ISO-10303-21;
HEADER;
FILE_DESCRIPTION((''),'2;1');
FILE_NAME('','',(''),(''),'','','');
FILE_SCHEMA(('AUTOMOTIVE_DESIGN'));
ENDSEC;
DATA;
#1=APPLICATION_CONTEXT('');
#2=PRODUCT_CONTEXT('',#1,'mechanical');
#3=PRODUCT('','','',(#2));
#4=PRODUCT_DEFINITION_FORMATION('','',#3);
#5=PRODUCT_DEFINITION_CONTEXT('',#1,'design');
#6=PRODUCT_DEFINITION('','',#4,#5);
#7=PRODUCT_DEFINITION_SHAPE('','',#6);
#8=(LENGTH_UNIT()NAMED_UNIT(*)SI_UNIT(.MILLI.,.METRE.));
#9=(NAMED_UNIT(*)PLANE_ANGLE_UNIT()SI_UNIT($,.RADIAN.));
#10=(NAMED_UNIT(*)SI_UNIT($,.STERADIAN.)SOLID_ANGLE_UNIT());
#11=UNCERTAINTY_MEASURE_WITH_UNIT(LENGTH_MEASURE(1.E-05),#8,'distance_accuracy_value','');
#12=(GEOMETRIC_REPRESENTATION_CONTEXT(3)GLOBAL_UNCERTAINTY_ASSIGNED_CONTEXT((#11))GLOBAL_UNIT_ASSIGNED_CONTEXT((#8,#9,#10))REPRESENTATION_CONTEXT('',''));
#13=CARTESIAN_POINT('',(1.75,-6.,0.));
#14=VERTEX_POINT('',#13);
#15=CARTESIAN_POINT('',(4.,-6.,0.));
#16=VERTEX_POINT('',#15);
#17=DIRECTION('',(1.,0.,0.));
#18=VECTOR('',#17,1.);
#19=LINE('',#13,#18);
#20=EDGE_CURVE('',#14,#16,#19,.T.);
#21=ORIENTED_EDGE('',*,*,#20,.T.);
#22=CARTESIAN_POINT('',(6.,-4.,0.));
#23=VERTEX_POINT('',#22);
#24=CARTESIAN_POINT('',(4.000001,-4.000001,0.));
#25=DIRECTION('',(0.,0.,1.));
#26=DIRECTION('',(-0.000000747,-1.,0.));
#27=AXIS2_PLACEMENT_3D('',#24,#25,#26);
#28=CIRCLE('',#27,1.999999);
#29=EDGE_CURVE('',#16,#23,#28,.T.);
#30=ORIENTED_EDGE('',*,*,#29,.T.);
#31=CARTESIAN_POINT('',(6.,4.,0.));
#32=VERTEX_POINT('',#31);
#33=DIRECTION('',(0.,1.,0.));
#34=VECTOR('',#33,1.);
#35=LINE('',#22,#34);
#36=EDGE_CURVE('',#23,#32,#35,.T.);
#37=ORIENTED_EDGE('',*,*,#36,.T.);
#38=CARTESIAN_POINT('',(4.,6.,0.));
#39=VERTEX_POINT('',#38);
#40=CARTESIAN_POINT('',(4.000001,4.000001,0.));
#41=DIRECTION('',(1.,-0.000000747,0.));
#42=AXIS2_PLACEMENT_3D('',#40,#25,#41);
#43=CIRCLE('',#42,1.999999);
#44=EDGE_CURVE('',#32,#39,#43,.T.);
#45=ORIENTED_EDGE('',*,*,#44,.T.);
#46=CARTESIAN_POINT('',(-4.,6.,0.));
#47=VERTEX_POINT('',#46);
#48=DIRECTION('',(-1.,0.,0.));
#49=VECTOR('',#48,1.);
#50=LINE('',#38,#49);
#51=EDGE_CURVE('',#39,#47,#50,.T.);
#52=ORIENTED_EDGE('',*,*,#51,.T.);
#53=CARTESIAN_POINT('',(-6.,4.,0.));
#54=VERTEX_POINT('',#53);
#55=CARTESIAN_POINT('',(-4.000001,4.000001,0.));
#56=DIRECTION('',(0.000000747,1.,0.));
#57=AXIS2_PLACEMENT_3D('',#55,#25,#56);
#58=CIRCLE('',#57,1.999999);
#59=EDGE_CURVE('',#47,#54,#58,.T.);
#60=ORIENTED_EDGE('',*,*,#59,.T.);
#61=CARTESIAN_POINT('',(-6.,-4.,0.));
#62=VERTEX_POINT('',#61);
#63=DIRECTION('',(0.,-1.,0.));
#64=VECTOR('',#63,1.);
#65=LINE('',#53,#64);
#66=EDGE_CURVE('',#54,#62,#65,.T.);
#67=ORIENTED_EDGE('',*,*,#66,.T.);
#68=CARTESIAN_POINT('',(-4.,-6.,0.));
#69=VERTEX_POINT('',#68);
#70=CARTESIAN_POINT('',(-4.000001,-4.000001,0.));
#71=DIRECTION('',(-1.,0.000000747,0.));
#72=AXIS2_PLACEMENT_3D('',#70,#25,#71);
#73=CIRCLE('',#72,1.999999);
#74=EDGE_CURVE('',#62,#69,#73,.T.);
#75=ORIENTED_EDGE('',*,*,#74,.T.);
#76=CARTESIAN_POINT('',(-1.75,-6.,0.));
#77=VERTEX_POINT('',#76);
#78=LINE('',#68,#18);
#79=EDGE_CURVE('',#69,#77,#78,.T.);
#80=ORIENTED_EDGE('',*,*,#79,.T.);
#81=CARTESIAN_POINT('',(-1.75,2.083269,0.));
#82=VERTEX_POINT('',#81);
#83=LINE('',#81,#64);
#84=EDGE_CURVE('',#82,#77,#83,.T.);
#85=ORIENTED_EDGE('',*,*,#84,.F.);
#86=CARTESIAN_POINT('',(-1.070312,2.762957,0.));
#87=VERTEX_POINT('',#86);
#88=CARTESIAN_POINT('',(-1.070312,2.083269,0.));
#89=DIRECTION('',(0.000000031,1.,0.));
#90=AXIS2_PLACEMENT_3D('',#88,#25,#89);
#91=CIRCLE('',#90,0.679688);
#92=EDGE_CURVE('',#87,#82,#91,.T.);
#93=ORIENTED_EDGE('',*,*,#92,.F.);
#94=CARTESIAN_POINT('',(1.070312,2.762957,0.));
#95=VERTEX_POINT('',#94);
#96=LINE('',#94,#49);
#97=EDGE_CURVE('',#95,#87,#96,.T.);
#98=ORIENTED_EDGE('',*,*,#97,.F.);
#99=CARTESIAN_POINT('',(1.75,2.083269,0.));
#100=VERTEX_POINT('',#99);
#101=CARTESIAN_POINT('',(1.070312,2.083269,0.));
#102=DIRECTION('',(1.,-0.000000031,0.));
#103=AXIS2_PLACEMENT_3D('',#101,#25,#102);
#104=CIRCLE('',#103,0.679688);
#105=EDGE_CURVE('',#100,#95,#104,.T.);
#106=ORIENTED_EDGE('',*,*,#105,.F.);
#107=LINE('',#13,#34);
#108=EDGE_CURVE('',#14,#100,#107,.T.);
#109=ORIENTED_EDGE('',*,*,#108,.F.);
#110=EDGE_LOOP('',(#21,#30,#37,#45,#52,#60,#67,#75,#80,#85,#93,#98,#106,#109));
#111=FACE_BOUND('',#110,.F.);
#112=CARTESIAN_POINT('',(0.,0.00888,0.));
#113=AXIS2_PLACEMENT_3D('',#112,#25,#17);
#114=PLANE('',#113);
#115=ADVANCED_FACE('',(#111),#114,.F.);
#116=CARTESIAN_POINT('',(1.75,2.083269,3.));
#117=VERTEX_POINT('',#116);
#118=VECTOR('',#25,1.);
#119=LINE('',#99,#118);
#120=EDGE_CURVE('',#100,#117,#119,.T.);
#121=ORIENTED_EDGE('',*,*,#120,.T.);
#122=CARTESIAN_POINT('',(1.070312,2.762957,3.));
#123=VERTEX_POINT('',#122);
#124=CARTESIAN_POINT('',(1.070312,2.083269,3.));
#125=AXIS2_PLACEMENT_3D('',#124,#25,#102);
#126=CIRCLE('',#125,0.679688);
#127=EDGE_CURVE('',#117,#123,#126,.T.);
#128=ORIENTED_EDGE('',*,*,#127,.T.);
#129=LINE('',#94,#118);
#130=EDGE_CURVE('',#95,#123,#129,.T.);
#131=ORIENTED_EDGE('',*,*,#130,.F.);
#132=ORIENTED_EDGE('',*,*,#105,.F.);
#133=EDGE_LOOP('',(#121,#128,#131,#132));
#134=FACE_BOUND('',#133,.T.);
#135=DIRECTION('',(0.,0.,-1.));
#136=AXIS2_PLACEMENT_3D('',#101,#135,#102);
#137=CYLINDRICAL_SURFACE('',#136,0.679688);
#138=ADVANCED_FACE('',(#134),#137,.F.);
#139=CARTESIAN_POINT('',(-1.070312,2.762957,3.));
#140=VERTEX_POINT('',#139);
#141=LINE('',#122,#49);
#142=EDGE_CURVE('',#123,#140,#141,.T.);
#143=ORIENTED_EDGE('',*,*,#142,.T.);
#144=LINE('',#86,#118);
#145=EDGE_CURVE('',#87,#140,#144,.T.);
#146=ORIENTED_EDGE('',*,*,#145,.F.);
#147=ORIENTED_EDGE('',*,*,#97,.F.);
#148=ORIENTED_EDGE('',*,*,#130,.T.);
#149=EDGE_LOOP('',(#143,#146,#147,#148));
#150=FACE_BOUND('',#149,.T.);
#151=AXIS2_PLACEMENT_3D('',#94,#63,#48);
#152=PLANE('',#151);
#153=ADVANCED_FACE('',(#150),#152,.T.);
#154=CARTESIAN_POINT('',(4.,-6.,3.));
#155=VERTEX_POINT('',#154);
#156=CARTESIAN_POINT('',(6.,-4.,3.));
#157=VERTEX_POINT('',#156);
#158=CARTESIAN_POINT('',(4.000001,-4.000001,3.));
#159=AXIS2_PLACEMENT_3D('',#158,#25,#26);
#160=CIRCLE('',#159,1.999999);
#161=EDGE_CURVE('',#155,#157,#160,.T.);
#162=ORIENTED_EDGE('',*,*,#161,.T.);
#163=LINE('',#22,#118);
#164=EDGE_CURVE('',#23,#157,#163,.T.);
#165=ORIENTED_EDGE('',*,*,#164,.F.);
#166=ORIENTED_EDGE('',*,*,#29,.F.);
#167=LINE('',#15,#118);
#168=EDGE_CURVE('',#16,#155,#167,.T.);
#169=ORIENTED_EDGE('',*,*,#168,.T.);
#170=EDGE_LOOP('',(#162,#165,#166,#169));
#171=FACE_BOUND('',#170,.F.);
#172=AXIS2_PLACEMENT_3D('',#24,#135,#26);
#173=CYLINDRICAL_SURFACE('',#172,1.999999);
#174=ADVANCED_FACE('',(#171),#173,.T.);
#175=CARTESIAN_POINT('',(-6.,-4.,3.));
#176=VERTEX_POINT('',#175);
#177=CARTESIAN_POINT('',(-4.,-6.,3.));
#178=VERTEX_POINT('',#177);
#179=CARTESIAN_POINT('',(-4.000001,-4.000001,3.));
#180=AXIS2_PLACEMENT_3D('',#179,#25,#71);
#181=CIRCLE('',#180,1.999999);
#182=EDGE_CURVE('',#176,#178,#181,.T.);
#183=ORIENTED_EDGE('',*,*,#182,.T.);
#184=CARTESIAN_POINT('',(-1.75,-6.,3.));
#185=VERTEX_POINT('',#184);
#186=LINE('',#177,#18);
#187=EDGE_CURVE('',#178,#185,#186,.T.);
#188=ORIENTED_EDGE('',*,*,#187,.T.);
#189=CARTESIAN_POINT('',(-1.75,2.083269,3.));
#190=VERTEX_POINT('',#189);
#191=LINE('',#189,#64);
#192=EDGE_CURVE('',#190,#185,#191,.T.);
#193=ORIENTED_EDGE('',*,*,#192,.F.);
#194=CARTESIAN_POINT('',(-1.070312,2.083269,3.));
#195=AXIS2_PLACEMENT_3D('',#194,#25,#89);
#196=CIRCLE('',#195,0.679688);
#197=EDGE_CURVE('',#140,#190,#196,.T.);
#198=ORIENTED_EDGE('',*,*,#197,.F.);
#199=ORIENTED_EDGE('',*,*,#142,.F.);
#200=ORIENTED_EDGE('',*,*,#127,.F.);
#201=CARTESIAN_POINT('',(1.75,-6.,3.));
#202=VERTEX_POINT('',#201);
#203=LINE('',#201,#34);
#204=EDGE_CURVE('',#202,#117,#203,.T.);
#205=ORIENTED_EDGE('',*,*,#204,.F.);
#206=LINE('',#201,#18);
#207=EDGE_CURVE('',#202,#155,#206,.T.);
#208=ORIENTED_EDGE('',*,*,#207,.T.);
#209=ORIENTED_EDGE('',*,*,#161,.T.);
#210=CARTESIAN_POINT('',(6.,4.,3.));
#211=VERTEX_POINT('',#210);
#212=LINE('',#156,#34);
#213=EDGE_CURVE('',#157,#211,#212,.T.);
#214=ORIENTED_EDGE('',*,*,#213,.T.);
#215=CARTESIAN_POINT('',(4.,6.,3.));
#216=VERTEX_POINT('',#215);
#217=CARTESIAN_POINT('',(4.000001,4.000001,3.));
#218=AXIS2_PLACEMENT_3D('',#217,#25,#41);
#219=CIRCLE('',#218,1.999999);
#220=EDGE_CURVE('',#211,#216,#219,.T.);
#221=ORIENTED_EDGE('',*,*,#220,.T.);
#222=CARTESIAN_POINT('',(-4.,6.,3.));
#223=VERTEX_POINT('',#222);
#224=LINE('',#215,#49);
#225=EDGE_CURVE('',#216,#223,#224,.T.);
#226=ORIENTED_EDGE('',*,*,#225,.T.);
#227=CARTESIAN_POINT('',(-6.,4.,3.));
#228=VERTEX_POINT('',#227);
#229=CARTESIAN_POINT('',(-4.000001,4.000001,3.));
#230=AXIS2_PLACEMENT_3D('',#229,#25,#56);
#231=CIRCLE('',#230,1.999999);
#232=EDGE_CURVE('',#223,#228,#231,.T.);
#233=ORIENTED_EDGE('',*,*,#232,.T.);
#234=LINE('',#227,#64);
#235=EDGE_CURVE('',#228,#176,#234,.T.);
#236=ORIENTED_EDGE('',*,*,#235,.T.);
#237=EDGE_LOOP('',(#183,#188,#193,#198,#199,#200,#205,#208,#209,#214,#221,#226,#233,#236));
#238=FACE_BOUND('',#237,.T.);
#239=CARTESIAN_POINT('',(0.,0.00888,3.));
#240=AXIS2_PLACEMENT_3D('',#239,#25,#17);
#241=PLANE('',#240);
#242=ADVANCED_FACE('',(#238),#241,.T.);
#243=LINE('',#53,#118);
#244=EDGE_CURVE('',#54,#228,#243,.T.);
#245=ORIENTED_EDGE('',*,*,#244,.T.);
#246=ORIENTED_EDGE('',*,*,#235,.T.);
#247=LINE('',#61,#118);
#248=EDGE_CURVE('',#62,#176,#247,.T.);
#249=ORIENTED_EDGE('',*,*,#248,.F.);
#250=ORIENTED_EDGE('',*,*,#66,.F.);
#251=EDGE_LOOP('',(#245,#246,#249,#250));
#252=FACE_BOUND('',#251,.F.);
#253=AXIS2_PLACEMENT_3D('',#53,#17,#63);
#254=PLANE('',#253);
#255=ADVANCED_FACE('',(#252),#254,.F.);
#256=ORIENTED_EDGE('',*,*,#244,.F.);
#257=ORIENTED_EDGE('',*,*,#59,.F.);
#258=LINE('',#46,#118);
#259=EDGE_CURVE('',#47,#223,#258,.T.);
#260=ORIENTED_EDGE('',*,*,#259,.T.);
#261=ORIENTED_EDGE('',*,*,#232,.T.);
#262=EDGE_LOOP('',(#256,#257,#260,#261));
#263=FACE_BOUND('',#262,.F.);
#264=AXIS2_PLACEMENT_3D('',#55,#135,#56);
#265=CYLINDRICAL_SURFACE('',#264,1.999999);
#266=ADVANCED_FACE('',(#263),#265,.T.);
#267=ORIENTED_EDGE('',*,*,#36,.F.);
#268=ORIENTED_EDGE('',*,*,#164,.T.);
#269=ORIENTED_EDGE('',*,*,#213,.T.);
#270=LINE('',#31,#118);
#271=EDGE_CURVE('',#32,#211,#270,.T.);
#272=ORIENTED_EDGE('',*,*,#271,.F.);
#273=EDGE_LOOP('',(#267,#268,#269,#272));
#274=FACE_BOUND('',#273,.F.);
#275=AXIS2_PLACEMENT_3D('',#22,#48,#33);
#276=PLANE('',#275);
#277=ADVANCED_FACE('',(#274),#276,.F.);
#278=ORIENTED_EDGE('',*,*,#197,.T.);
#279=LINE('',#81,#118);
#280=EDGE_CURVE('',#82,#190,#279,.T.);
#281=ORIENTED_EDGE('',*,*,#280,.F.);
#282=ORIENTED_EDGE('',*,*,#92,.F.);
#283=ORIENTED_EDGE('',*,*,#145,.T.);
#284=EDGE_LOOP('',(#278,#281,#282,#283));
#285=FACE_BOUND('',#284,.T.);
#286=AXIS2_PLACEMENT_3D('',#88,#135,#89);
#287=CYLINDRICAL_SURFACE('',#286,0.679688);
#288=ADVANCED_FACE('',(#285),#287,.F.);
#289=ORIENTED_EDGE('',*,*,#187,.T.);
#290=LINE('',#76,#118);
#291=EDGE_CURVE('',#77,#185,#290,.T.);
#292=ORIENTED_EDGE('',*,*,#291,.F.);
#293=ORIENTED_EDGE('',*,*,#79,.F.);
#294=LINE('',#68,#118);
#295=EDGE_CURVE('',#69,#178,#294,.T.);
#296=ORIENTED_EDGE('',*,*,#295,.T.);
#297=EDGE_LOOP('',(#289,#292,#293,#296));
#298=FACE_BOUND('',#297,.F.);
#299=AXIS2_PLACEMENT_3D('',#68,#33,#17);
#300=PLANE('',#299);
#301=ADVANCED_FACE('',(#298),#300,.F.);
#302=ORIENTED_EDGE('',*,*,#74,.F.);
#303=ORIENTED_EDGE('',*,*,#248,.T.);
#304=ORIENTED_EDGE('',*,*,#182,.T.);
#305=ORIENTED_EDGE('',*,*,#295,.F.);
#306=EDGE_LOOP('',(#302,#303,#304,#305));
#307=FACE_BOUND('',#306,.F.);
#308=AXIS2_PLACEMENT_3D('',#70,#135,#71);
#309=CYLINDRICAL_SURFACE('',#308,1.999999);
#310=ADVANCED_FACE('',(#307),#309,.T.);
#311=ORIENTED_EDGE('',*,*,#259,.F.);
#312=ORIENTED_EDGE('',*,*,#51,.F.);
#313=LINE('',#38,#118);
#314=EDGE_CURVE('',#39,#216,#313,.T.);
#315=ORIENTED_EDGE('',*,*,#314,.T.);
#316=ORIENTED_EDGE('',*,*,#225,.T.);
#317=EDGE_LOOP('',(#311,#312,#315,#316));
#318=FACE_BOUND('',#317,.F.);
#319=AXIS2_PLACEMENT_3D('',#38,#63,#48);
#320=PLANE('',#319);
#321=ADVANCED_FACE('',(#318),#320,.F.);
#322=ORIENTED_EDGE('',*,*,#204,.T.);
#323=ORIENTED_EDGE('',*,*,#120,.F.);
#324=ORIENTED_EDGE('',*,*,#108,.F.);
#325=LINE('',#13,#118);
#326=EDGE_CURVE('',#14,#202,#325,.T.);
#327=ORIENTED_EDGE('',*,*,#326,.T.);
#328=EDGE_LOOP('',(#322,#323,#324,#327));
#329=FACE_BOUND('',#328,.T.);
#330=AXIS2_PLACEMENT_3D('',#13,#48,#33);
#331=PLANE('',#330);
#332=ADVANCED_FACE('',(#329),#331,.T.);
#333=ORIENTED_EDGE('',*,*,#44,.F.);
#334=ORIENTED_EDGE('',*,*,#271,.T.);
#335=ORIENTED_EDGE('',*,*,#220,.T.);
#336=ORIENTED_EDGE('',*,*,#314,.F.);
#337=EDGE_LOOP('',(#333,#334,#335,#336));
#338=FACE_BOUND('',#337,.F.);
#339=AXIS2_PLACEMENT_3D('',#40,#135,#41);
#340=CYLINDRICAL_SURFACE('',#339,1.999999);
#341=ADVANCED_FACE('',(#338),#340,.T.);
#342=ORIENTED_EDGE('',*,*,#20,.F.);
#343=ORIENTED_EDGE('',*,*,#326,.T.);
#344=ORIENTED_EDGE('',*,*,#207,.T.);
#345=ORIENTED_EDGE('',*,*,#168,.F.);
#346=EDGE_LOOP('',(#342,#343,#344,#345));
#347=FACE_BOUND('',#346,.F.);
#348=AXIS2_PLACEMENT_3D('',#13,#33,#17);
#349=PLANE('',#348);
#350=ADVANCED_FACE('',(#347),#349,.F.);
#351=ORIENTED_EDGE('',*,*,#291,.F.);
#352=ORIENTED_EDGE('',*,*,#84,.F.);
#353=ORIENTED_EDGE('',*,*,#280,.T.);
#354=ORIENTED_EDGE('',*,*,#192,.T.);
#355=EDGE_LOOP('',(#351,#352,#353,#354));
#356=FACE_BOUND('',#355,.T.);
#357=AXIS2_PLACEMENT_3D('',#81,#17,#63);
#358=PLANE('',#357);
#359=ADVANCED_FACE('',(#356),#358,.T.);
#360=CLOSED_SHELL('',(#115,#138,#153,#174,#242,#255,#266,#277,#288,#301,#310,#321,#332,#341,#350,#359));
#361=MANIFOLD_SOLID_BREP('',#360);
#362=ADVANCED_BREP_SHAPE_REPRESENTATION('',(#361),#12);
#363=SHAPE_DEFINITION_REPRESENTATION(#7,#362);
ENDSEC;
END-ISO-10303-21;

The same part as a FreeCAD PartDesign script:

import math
import FreeCAD as App
import Part
import Sketcher
from FreeCAD import Vector

doc = App.newDocument("Part")
params = doc.addObject("Spreadsheet::Sheet", "Params")
for row, (alias, value) in enumerate([
    ("sketch1_radius", "1.999999 mm"),
    ("sketch1_width", "8 mm"),
    ("sketch1_width2", "2.25 mm"),
    ("pad1_length", "3 mm"),
], start=1):
    params.set(f"A{row}", alias)
    params.set(f"B{row}", "=" + value)
    params.setAlias(f"B{row}", alias)

body = doc.addObject("PartDesign::Body", "Body")

# Sketch on XY plane
sketch1 = body.newObject("Sketcher::SketchObject", "Sketch")
sketch1.AttachmentSupport = (doc.getObject("XY_Plane"), [""])
sketch1.MapMode = "FlatFace"
sketch1.addGeometry([
    Part.LineSegment(Vector(-6, 4, 0), Vector(-6, -4, 0)),  # 0
    Part.ArcOfCircle(Part.Circle(Vector(-4.000001, -4.000001, 0), Vector(0, 0, 1), 1.999999), math.radians(179.999957), math.radians(270.000043)),  # 1
    Part.LineSegment(Vector(-4, -6, 0), Vector(-1.75, -6, 0)),  # 2
    Part.LineSegment(Vector(-1.75, -6, 0), Vector(-1.75, 2.083269, 0)),  # 3
    Part.ArcOfCircle(Part.Circle(Vector(-1.070312, 2.083269, 0), Vector(0, 0, 1), 0.679688), math.radians(89.999998), math.radians(180.000002)),  # 4
    Part.LineSegment(Vector(-1.070312, 2.762957, 0), Vector(1.070312, 2.762957, 0)),  # 5
    Part.ArcOfCircle(Part.Circle(Vector(1.070312, 2.083269, 0), Vector(0, 0, 1), 0.679688), math.radians(-0.000002), math.radians(90.000002)),  # 6
    Part.LineSegment(Vector(1.75, 2.083269, 0), Vector(1.75, -6, 0)),  # 7
    Part.LineSegment(Vector(1.75, -6, 0), Vector(4, -6, 0)),  # 8
    Part.ArcOfCircle(Part.Circle(Vector(4.000001, -4.000001, 0), Vector(0, 0, 1), 1.999999), math.radians(-90.000043), math.radians(0.000043)),  # 9
    Part.LineSegment(Vector(6, -4, 0), Vector(6, 4, 0)),  # 10
    Part.ArcOfCircle(Part.Circle(Vector(4.000001, 4.000001, 0), Vector(0, 0, 1), 1.999999), math.radians(-0.000043), math.radians(90.000043)),  # 11
    Part.LineSegment(Vector(4, 6, 0), Vector(-4, 6, 0)),  # 12
    Part.ArcOfCircle(Part.Circle(Vector(-4.000001, 4.000001, 0), Vector(0, 0, 1), 1.999999), math.radians(89.999957), math.radians(180.000043)),  # 13
], False)
sketch1.addConstraint([
    Sketcher.Constraint("Tangent", 0, 2, 1, 1),
    Sketcher.Constraint("Tangent", 1, 2, 2, 1),
    Sketcher.Constraint("Coincident", 2, 2, 3, 1),
    Sketcher.Constraint("Tangent", 3, 2, 4, 2),
    Sketcher.Constraint("Tangent", 4, 1, 5, 1),
    Sketcher.Constraint("Tangent", 5, 2, 6, 2),
    Sketcher.Constraint("Tangent", 6, 1, 7, 1),
    Sketcher.Constraint("Coincident", 7, 2, 8, 1),
    Sketcher.Constraint("Tangent", 8, 2, 9, 1),
    Sketcher.Constraint("Tangent", 9, 2, 10, 1),
    Sketcher.Constraint("Tangent", 10, 2, 11, 1),
    Sketcher.Constraint("Tangent", 11, 2, 12, 1),
    Sketcher.Constraint("Tangent", 12, 2, 13, 1),
    Sketcher.Constraint("Tangent", 13, 2, 0, 1),
    Sketcher.Constraint("Vertical", 0),
    Sketcher.Constraint("Horizontal", 2),
    Sketcher.Constraint("Vertical", 3),
    Sketcher.Constraint("Horizontal", 5),
    Sketcher.Constraint("Vertical", 7),
    Sketcher.Constraint("Horizontal", 8),
    Sketcher.Constraint("Vertical", 10),
    Sketcher.Constraint("Horizontal", 12),
    Sketcher.Constraint("Equal", 4, 6),
    Sketcher.Constraint("Equal", 1, 9),
    Sketcher.Constraint("Equal", 9, 11),
    Sketcher.Constraint("Equal", 11, 13),
    Sketcher.Constraint("Symmetric", 1, 3, 11, 3, -1, 1),
    Sketcher.Constraint("Symmetric", 2, 2, 7, 2, -2),
    Sketcher.Constraint("Equal", 12, 0),
    Sketcher.Constraint("Radius", 1, 1.999999),
    Sketcher.Constraint("DistanceX", 12, 2, 12, 1, 8.0),
    Sketcher.Constraint("DistanceX", 2, 1, 2, 2, 2.25),
    Sketcher.Constraint("Radius", 4, 0.679688),
    Sketcher.Constraint("DistanceY", 3, 1, 3, 2, 8.083269),
])
sketch1.setExpression("Constraints[29]", "Params.sketch1_radius")
sketch1.setExpression("Constraints[30]", "Params.sketch1_width")
sketch1.setExpression("Constraints[31]", "Params.sketch1_width2")
pad1 = body.newObject("PartDesign::Pad", "Pad")
pad1.Profile = sketch1
pad1.setExpression("Length", "Params.pad1_length")

doc.recompute()
